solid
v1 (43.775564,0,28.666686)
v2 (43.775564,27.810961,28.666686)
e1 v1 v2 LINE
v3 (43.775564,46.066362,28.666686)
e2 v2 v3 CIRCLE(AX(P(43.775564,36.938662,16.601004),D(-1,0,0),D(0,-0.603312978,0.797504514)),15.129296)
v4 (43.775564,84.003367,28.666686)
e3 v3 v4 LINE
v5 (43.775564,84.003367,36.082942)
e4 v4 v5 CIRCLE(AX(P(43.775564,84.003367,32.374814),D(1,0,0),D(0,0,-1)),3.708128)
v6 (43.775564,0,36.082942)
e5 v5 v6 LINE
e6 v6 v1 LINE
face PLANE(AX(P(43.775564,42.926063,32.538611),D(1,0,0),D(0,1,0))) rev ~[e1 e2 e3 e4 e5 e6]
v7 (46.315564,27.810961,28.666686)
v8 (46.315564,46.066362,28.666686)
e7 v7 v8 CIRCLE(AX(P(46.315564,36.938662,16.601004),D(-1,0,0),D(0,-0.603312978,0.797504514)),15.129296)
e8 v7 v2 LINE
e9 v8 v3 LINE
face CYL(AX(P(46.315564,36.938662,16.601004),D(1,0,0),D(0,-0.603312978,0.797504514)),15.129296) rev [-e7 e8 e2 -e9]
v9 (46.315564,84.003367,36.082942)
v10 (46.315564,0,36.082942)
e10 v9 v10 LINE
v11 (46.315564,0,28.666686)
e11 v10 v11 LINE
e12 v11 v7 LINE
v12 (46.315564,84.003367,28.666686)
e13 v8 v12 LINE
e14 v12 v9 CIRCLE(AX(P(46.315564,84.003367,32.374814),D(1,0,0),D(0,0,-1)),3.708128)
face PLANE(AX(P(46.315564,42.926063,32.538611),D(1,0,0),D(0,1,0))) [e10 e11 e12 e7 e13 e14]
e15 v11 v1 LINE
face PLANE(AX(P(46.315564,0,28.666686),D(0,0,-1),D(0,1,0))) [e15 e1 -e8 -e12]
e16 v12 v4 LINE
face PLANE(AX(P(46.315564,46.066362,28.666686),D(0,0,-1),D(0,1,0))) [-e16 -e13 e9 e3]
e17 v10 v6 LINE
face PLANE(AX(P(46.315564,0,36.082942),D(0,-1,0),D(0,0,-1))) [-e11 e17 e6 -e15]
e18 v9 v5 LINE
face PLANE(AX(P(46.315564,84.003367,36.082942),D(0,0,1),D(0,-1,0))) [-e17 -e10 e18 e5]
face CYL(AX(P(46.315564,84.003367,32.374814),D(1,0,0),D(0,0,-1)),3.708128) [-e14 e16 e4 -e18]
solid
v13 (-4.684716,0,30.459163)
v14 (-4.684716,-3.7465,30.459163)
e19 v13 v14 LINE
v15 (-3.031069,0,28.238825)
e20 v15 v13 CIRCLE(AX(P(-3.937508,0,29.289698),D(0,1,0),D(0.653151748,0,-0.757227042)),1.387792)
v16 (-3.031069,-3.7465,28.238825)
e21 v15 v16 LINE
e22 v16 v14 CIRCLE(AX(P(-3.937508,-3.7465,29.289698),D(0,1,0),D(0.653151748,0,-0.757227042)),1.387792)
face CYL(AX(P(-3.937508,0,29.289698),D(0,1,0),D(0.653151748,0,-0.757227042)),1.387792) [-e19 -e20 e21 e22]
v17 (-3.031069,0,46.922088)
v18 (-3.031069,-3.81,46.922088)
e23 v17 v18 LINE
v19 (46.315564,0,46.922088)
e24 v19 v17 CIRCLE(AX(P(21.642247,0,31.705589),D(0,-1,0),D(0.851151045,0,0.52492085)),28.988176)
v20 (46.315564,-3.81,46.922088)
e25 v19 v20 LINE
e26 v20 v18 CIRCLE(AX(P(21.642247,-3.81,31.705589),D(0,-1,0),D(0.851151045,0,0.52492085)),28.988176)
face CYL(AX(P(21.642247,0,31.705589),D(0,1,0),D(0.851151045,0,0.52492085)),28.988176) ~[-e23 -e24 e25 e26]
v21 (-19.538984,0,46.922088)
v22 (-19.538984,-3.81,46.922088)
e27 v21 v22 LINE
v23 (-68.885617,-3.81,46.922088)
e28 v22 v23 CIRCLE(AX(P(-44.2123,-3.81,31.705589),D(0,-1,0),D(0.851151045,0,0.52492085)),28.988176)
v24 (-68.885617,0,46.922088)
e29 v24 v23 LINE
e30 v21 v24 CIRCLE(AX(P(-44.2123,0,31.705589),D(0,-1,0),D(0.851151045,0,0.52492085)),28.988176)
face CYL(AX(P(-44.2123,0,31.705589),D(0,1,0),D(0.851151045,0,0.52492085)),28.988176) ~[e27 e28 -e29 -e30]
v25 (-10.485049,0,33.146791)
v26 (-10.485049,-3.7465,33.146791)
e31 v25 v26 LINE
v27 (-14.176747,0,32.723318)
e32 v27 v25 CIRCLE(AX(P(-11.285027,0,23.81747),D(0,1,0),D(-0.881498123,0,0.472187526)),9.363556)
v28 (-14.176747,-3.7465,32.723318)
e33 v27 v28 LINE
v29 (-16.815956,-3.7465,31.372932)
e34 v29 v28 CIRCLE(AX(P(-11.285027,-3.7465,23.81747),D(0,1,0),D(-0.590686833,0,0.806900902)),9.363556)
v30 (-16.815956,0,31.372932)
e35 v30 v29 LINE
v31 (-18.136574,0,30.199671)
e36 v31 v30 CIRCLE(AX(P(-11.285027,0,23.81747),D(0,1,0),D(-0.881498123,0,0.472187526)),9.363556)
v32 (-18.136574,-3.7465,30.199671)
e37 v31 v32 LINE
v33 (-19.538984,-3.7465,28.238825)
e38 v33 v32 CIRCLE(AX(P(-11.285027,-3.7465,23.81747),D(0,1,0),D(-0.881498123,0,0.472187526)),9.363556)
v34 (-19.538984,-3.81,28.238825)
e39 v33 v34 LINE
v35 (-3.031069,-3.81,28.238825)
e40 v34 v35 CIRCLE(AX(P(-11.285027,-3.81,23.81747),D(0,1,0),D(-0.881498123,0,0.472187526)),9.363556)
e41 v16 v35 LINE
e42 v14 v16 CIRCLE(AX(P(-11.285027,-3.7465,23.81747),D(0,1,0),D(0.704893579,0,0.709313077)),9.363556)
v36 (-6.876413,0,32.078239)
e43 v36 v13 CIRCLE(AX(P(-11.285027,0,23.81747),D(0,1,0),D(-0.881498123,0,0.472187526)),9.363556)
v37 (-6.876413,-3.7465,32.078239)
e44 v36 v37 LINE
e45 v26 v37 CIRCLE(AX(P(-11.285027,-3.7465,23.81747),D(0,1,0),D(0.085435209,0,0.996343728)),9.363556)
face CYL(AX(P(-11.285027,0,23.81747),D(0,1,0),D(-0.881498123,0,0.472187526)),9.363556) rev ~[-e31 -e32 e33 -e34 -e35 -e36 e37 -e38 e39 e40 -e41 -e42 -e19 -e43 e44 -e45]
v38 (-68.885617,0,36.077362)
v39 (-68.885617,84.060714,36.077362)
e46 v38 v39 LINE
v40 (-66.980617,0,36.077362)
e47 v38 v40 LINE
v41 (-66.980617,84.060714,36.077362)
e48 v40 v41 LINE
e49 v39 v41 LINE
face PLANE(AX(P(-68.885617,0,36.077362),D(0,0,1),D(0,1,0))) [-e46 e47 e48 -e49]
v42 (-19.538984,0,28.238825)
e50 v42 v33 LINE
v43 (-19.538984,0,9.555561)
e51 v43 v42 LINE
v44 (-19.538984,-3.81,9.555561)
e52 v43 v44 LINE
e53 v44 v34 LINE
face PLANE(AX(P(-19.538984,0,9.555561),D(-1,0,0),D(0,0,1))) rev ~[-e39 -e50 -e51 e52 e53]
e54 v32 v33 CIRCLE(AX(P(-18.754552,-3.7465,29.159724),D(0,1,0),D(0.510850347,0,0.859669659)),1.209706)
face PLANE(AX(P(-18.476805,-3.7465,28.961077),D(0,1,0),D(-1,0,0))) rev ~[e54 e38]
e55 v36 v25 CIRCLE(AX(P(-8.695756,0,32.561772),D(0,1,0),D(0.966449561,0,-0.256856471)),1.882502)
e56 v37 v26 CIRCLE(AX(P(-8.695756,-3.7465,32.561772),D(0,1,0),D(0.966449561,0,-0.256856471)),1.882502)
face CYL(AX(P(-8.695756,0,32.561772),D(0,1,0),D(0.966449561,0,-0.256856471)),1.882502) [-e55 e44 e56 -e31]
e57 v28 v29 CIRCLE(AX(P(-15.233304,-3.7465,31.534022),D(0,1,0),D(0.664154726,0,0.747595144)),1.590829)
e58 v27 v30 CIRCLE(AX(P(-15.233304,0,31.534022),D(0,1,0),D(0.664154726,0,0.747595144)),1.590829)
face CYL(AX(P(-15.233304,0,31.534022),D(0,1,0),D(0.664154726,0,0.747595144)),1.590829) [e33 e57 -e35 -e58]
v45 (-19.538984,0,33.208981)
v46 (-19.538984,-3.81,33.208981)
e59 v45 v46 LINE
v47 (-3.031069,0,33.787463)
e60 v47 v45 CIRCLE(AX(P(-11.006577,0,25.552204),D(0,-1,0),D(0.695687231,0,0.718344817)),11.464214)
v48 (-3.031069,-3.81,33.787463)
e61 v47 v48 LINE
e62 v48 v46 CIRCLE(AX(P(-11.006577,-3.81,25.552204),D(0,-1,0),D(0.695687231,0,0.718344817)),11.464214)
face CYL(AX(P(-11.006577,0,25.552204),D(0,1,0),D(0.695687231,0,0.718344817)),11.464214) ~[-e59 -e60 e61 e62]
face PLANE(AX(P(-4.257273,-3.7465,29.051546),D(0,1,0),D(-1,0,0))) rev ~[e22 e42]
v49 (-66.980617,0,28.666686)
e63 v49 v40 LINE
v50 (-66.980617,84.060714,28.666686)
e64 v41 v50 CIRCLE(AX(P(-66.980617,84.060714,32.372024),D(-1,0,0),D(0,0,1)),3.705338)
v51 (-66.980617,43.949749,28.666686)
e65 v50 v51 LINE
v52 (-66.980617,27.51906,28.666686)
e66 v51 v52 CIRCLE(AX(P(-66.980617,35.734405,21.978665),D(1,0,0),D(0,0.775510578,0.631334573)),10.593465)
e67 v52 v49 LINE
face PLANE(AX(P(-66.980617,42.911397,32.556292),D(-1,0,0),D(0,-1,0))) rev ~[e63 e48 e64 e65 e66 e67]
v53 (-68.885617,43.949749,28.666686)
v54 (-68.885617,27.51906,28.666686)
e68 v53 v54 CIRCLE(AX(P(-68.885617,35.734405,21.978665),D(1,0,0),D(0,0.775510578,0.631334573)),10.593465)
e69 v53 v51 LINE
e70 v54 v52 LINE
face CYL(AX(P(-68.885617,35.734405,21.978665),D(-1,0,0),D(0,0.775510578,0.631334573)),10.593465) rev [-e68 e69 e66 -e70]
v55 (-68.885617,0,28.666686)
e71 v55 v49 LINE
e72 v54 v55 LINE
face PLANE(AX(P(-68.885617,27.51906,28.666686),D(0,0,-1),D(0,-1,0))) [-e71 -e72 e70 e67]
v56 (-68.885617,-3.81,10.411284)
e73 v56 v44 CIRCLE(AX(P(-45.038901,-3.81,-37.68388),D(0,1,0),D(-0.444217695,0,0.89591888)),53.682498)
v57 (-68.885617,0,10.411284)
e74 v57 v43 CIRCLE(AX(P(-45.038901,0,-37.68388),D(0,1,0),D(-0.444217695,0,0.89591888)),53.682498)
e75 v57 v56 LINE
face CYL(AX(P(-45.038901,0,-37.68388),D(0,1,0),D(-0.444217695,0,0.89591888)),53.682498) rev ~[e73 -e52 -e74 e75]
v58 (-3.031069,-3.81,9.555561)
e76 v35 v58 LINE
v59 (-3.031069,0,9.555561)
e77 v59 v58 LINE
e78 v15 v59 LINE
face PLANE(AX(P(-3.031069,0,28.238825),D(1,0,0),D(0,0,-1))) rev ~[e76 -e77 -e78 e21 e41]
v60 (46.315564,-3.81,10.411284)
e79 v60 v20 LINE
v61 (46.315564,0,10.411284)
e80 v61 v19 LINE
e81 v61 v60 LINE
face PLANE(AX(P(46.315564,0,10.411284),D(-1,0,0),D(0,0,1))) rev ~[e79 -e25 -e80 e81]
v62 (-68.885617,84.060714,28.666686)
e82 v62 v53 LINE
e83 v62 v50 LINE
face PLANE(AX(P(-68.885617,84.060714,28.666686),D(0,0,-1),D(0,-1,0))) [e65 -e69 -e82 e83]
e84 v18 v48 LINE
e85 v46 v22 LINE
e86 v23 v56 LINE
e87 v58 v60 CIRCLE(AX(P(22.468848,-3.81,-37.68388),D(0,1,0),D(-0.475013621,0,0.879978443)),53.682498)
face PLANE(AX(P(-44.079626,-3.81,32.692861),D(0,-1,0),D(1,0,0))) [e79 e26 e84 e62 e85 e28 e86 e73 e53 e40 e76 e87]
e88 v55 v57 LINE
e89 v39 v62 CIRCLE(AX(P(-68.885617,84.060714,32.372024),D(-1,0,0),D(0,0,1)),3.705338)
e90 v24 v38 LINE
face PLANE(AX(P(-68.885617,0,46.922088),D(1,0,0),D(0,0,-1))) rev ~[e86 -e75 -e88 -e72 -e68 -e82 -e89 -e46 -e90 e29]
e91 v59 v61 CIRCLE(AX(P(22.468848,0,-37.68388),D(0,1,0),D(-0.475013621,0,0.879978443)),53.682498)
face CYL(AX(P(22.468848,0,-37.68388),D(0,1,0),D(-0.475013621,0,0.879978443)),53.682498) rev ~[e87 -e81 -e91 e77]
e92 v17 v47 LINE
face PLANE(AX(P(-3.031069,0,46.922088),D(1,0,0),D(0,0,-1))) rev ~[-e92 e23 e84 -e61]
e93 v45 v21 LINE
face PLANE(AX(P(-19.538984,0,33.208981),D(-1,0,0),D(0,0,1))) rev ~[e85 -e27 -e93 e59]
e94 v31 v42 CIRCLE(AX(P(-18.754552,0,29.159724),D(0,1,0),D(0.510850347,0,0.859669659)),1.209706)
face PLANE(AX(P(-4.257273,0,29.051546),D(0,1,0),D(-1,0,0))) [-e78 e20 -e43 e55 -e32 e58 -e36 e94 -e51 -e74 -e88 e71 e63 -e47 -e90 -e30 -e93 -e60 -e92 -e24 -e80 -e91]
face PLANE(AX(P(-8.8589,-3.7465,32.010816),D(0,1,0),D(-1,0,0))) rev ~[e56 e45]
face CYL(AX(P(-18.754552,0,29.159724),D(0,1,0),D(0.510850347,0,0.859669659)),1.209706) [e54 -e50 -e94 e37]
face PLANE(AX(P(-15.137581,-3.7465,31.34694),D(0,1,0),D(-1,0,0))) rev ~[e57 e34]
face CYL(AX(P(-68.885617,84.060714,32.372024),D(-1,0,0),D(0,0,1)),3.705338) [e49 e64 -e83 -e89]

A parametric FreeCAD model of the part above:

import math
import FreeCAD as App
import Part
import Sketcher

V = App.Vector
Q = App.Units.Quantity

doc = App.newDocument("Part")
body = doc.addObject("PartDesign::Body", "Body")

# Sketch on XZ plane
sketch1 = body.newObject("Sketcher::SketchObject", "Sketch")
sketch1.AttachmentSupport = (doc.getObject("XZ_Plane"), [""])
sketch1.MapMode = "FlatFace"
sketch1.addGeometry([
    Part.ArcOfCircle(Part.Circle(V(-45.038901, -37.68388, 0), V(0, 0, 1), 53.682498), math.radians(61.639763), math.radians(116.373298)),  # 0
    Part.LineSegment(V(-19.538984, 9.555561, 0), V(-19.538984, 28.238825, 0)),  # 1
    Part.ArcOfCircle(Part.Circle(V(-11.285027, 23.81747, 0), V(0, 0, 1), 9.363556), math.radians(28.176388), math.radians(151.823612)),  # 2
    Part.LineSegment(V(-3.031069, 28.238825, 0), V(-3.031069, 9.555561, 0)),  # 3
    Part.ArcOfCircle(Part.Circle(V(22.468848, -37.68388, 0), V(0, 0, 1), 53.682498), math.radians(63.626702), math.radians(118.360237)),  # 4
    Part.LineSegment(V(46.315564, 10.411284, 0), V(46.315564, 46.922088, 0)),  # 5
    Part.ArcOfCircle(Part.Circle(V(21.642247, 31.705589, 0), V(0, 0, 1), 28.988176), math.radians(31.662915), math.radians(148.337085)),  # 6
    Part.LineSegment(V(-3.031069, 46.922088, 0), V(-3.031069, 33.787463, 0)),  # 7
    Part.ArcOfCircle(Part.Circle(V(-11.006577, 25.552204, 0), V(0, 0, 1), 11.464214), math.radians(45.917994), math.radians(138.09596)),  # 8
    Part.LineSegment(V(-19.538984, 33.208981, 0), V(-19.538984, 46.922088, 0)),  # 9
    Part.ArcOfCircle(Part.Circle(V(-44.2123, 31.705589, 0), V(0, 0, 1), 28.988176), math.radians(31.662915), math.radians(148.337085)),  # 10
    Part.LineSegment(V(-68.885617, 46.922088, 0), V(-68.885617, 10.411284, 0)),  # 11
], False)
sketch1.addConstraint([
    Sketcher.Constraint("Coincident", 0, 1, 1, 1),
    Sketcher.Constraint("Coincident", 1, 2, 2, 2),
    Sketcher.Constraint("Coincident", 2, 1, 3, 1),
    Sketcher.Constraint("Coincident", 3, 2, 4, 2),
    Sketcher.Constraint("Coincident", 4, 1, 5, 1),
    Sketcher.Constraint("Coincident", 5, 2, 6, 1),
    Sketcher.Constraint("Coincident", 6, 2, 7, 1),
    Sketcher.Constraint("Coincident", 7, 2, 8, 1),
    Sketcher.Constraint("Coincident", 8, 2, 9, 1),
    Sketcher.Constraint("Coincident", 9, 2, 10, 1),
    Sketcher.Constraint("Coincident", 10, 2, 11, 1),
    Sketcher.Constraint("Coincident", 11, 2, 0, 2),
    Sketcher.Constraint("Vertical", 1),
    Sketcher.Constraint("Vertical", 3),
    Sketcher.Constraint("Vertical", 5),
    Sketcher.Constraint("Vertical", 7),
    Sketcher.Constraint("Vertical", 9),
    Sketcher.Constraint("Vertical", 11),
    Sketcher.Constraint("Equal", 0, 4),
    Sketcher.Constraint("Equal", 6, 10),
    Sketcher.Constraint("Horizontal", 0, 3, 4, 3),
    Sketcher.Constraint("Horizontal", 6, 3, 10, 3),
    Sketcher.Constraint("Horizontal", 1, 2, 2, 1),
    Sketcher.Constraint("Horizontal", 0, 1, 3, 2),
    Sketcher.Constraint("Horizontal", 5, 2, 6, 2),
    Sketcher.Constraint("Horizontal", 6, 2, 9, 2),
    Sketcher.Constraint("Horizontal", 9, 2, 10, 2),
    Sketcher.Constraint("Horizontal", 4, 1, 11, 2),
    Sketcher.Constraint("Vertical", 3, 2, 6, 2),
    Sketcher.Constraint("Radius", 0, Q("53.682498 mm")),
    Sketcher.Constraint("Radius", 2, Q("9.363556 mm")),
    Sketcher.Constraint("Radius", 6, Q("28.988176 mm")),
    Sketcher.Constraint("Radius", 8, Q("11.464214 mm")),
    Sketcher.Constraint("DistanceX", 0, 3, -1, 1, Q("45.038901 mm")),
    Sketcher.Constraint("DistanceX", 10, 3, -1, 1, Q("44.2123 mm")),
    Sketcher.Constraint("DistanceY", 6, 3, 5, 2, Q("15.216498 mm")),
    Sketcher.Constraint("DistanceY", 1, 1, 1, 2, Q("18.683263 mm")),
    Sketcher.Constraint("DistanceY", 5, 1, 5, 2, Q("36.510804 mm")),
    Sketcher.Constraint("DistanceY", 7, 2, 7, 1, Q("13.134625 mm")),
    Sketcher.Constraint("DistanceY", 9, 1, 9, 2, Q("13.713107 mm")),
    Sketcher.Constraint("DistanceY", 0, 3, -1, 1, Q("37.68388 mm")),
    Sketcher.Constraint("DistanceY", -1, 1, 2, 3, Q("23.81747 mm")),
])
pad1 = body.newObject("PartDesign::Pad", "Pad")
pad1.Profile = sketch1
pad1.Length = Q("0.15 in")

# Sketch on YZ plane
sketch2 = body.newObject("Sketcher::SketchObject", "Sketch001")
sketch2.AttachmentSupport = (doc.getObject("YZ_Plane"), [""])
sketch2.MapMode = "FlatFace"
sketch2.AttachmentOffset = App.Placement(V(0, 0, -68.885617), App.Rotation())
sketch2.addGeometry([
    Part.LineSegment(V(0, 28.666686, 0), V(0, 36.077362, 0)),  # 0
    Part.LineSegment(V(0, 36.077362, 0), V(84.060714, 36.077362, 0)),  # 1
    Part.ArcOfCircle(Part.Circle(V(84.060714, 32.372024, 0), V(0, 0, 1), 3.705338), math.radians(-90), math.radians(90)),  # 2
    Part.LineSegment(V(84.060714, 28.666686, 0), V(43.949749, 28.666686, 0)),  # 3
    Part.ArcOfCircle(Part.Circle(V(35.734405, 21.978665, 0), V(0, 0, 1), 10.593465), math.radians(39.148654), math.radians(140.851346)),  # 4
    Part.LineSegment(V(27.51906, 28.666686, 0), V(0, 28.666686, 0)),  # 5
], False)
sketch2.addConstraint([
    Sketcher.Constraint("Coincident", 0, 2, 1, 1),
    Sketcher.Constraint("Tangent", 1, 2, 2, 2),
    Sketcher.Constraint("Tangent", 2, 1, 3, 1),
    Sketcher.Constraint("Coincident", 3, 2, 4, 1),
    Sketcher.Constraint("Coincident", 4, 2, 5, 1),
    Sketcher.Constraint("Coincident", 5, 2, 0, 1),
    Sketcher.Constraint("Vertical", 0),
    Sketcher.Constraint("Horizontal", 1),
    Sketcher.Constraint("Horizontal", 3),
    Sketcher.Constraint("Horizontal", 5),
    Sketcher.Constraint("PointOnObject", 0, 2, -2),
    Sketcher.Constraint("Horizontal", 3, 2, 4, 2),
    Sketcher.Constraint("Radius", 2, Q("3.705338 mm")),
    Sketcher.Constraint("Radius", 4, Q("10.593465 mm")),
    Sketcher.Constraint("DistanceX", 5, 2, 5, 1, Q("27.51906 mm")),
    Sketcher.Constraint("DistanceX", 1, 1, 1, 2, Q("84.060714 mm")),
    Sketcher.Constraint("DistanceX", 3, 2, 3, 1, Q("40.110964 mm")),
    Sketcher.Constraint("DistanceY", -1, 1, 0, 2, Q("36.077362 mm")),
])
pad2 = body.newObject("PartDesign::Pad", "Pad001")
pad2.Profile = sketch2
pad2.Length = Q("0.075 in")

# Sketch on XZ plane
sketch3 = body.newObject("Sketcher::SketchObject", "Sketch002")
sketch3.AttachmentSupport = (doc.getObject("XZ_Plane"), [""])
sketch3.MapMode = "FlatFace"
sketch3.addGeometry([
    Part.ArcOfCircle(Part.Circle(V(-11.285027, 23.81747, 0), V(0, 0, 1), 9.363556), math.radians(61.912017), math.radians(85.098948)),  # 0
    Part.ArcOfCircle(Part.Circle(V(-8.695756, 32.561772, 0), V(0, 0, 1), 1.882502), math.radians(161.894584), math.radians(345.116382)),  # 1
    Part.ArcOfCircle(Part.Circle(V(-11.285027, 23.81747, 0), V(0, 0, 1), 9.363556), math.radians(28.176388), math.radians(45.179053)),  # 2
    Part.ArcOfCircle(Part.Circle(V(-3.937508, 29.289698, 0), V(0, 0, 1), 1.387792), math.radians(122.575787), math.radians(310.779654)),  # 3
    Part.ArcOfCircle(Part.Circle(V(-11.285027, 23.81747, 0), V(0, 0, 1), 9.363556), math.radians(107.988567), math.radians(126.205763)),  # 4
    Part.ArcOfCircle(Part.Circle(V(-15.233304, 31.534022, 0), V(0, 0, 1), 1.590829), math.radians(-174.188159), math.radians(48.382489)),  # 5
    Part.ArcOfCircle(Part.Circle(V(-11.285027, 23.81747, 0), V(0, 0, 1), 9.363556), math.radians(137.031195), math.radians(151.823612)),  # 6
    Part.ArcOfCircle(Part.Circle(V(-18.754552, 29.159724, 0), V(0, 0, 1), 1.209706), math.radians(-130.424705), math.radians(59.279512)),  # 7
], False)
sketch3.addConstraint([
    Sketcher.Constraint("Coincident", 0, 1, 1, 2),
    Sketcher.Constraint("Coincident", 1, 1, 0, 2),
    Sketcher.Constraint("Coincident", 2, 1, 3, 2),
    Sketcher.Constraint("Coincident", 3, 1, 2, 2),
    Sketcher.Constraint("Coincident", 4, 1, 5, 2),
    Sketcher.Constraint("Coincident", 5, 1, 4, 2),
    Sketcher.Constraint("Coincident", 6, 1, 7, 2),
    Sketcher.Constraint("Coincident", 7, 1, 6, 2),
    Sketcher.Constraint("Coincident", 2, 3, 0, 3),
    Sketcher.Constraint("Coincident", 4, 3, 0, 3),
    Sketcher.Constraint("Coincident", 6, 3, 0, 3),
    Sketcher.Constraint("Equal", 0, 2),
    Sketcher.Constraint("Equal", 2, 4),
    Sketcher.Constraint("Equal", 4, 6),
    Sketcher.Constraint("Horizontal", 2, 1, 7, 1),
    Sketcher.Constraint("Radius", 5, Q("1.590829 mm")),
    Sketcher.Constraint("Radius", 0, Q("9.363556 mm")),
    Sketcher.Constraint("Radius", 1, Q("1.882502 mm")),
    Sketcher.Constraint("Radius", 3, Q("1.387792 mm")),
    Sketcher.Constraint("Radius", 7, Q("1.209706 mm")),
    Sketcher.Constraint("DistanceY", -1, 1, 3, 3, Q("29.289698 mm")),
    Sketcher.Constraint("DistanceY", 7, 3, 5, 3, Q("2.374299 mm")),
    Sketcher.Constraint("DistanceX", 4, 1, 1, 1, Q("3.691698 mm")),
    Sketcher.Constraint("DistanceX", 5, 1, 1, 3, Q("8.120199 mm")),
    Sketcher.Constraint("DistanceY", 7, 1, 7, 3, Q("0.920899 mm")),
    Sketcher.Constraint("DistanceY", -1, 1, 0, 3, Q("23.81747 mm")),
    Sketcher.Constraint("DistanceX", 3, 3, -1, 1, Q("3.937508 mm")),
    Sketcher.Constraint("DistanceY", -1, 1, 0, 1, Q("32.078239 mm")),
    Sketcher.Constraint("DistanceX", 1, 1, -1, 1, Q("10.485049 mm")),
])
pad3 = body.newObject("PartDesign::Pad", "Pad002")
pad3.Profile = sketch3
pad3.Length = Q("0.1475 in")
body2 = doc.addObject("PartDesign::Body", "Body001")

# Sketch on YZ plane
sketch4 = body2.newObject("Sketcher::SketchObject", "Sketch003")
sketch4.AttachmentSupport = (doc.getObject("YZ_Plane001"), [""])
sketch4.MapMode = "FlatFace"
sketch4.AttachmentOffset = App.Placement(V(0, 0, 46.315564), App.Rotation())
sketch4.addGeometry([
    Part.LineSegment(V(0, 36.082942, 0), V(0, 28.666686, 0)),  # 0
    Part.LineSegment(V(0, 28.666686, 0), V(27.810961, 28.666686, 0)),  # 1
    Part.ArcOfCircle(Part.Circle(V(36.938662, 16.601004, 0), V(0, 0, 1), 15.129296), math.radians(52.892457), math.radians(127.107543)),  # 2
    Part.LineSegment(V(46.066362, 28.666686, 0), V(84.003367, 28.666686, 0)),  # 3
    Part.ArcOfCircle(Part.Circle(V(84.003367, 32.374814, 0), V(0, 0, 1), 3.708128), math.radians(-90), math.radians(90)),  # 4
    Part.LineSegment(V(84.003367, 36.082942, 0), V(0, 36.082942, 0)),  # 5
], False)
sketch4.addConstraint([
    Sketcher.Constraint("Coincident", 0, 2, 1, 1),
    Sketcher.Constraint("Coincident", 1, 2, 2, 2),
    Sketcher.Constraint("Coincident", 2, 1, 3, 1),
    Sketcher.Constraint("Tangent", 3, 2, 4, 1),
    Sketcher.Constraint("Tangent", 4, 2, 5, 1),
    Sketcher.Constraint("Coincident", 5, 2, 0, 1),
    Sketcher.Constraint("Vertical", 0),
    Sketcher.Constraint("Horizontal", 1),
    Sketcher.Constraint("Horizontal", 3),
    Sketcher.Constraint("Horizontal", 5),
    Sketcher.Constraint("PointOnObject", 0, 2, -2),
    Sketcher.Constraint("Horizontal", 1, 2, 2, 1),
    Sketcher.Constraint("Radius", 4, Q("3.708128 mm")),
    Sketcher.Constraint("Radius", 2, Q("15.129296 mm")),
    Sketcher.Constraint("DistanceX", 1, 1, 1, 2, Q("27.810961 mm")),
    Sketcher.Constraint("DistanceX", 1, 2, 2, 3, Q("9.127701 mm")),
    Sketcher.Constraint("DistanceX", 3, 1, 3, 2, Q("37.937004 mm")),
    Sketcher.Constraint("DistanceY", -1, 1, 2, 3, Q("16.601004 mm")),
])
pad4 = body2.newObject("PartDesign::Pad", "Pad003")
pad4.Profile = sketch4
pad4.Length = Q("0.1 in")
pad4.Reversed = True

doc.recompute()
